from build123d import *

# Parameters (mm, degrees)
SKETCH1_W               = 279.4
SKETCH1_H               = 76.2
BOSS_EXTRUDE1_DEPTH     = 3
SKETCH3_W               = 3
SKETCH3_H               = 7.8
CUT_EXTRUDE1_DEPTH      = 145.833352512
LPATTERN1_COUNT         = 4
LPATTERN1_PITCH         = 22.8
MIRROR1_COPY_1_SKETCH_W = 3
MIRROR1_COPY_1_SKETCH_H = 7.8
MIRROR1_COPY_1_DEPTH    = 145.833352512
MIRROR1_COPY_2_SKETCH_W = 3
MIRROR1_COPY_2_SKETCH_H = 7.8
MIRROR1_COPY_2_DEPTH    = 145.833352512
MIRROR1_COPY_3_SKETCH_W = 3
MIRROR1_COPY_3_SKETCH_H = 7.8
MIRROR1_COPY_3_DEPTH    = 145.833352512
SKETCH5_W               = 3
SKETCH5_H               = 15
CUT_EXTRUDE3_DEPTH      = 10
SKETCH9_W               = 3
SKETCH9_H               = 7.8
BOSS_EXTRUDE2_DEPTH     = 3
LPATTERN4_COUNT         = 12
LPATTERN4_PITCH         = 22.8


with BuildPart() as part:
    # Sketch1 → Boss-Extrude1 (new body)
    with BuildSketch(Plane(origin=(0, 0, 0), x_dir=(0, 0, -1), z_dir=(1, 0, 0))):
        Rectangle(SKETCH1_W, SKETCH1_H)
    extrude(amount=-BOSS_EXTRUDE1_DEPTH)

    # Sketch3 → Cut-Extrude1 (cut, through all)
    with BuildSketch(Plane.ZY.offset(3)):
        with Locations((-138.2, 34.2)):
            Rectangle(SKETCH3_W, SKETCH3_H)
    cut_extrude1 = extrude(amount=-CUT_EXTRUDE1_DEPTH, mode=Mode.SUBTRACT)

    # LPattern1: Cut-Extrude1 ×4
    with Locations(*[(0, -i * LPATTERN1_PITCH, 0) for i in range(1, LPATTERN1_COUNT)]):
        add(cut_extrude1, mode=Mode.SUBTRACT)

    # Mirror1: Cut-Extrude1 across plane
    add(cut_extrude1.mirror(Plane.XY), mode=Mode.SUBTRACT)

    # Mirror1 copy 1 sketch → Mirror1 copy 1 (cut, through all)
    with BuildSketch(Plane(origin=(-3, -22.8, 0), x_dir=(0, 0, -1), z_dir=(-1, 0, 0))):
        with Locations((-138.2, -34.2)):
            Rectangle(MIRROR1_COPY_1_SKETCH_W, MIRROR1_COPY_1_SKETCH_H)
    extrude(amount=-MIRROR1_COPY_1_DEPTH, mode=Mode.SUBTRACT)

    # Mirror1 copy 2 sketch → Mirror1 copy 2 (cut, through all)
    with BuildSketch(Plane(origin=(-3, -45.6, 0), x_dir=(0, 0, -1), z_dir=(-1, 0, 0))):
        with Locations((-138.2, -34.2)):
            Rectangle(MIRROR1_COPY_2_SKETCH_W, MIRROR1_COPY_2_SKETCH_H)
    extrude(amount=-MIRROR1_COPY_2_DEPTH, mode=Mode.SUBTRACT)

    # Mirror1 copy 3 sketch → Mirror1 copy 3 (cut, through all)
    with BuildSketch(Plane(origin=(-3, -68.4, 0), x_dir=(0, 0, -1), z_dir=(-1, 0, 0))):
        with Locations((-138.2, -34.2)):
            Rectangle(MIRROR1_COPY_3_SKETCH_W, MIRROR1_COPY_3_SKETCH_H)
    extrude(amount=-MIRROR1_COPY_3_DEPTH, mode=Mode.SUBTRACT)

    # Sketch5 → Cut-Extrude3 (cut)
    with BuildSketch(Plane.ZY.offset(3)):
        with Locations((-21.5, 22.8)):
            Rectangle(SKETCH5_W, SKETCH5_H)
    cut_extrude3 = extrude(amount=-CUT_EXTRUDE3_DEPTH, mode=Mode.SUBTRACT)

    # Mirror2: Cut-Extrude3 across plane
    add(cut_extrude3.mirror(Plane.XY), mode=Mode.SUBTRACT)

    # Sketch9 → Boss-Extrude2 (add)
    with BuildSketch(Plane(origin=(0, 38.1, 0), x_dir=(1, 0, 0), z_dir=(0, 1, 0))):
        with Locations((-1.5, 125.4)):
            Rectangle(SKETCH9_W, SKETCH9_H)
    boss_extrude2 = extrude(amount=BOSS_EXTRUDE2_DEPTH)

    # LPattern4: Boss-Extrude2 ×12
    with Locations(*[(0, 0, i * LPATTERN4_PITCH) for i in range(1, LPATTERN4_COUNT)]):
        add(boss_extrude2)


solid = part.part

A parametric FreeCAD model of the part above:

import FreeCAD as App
import Part
import Sketcher

V = App.Vector

doc = App.newDocument("Part")
body = doc.addObject("PartDesign::Body", "Body")

# Sketch on YZ plane
sketch1 = body.newObject("Sketcher::SketchObject", "Sketch")
sketch1.AttachmentSupport = (doc.getObject("YZ_Plane"), [""])
sketch1.MapMode = "FlatFace"
sketch1.addGeometry(Part.LineSegment(V(38, 140, 0), V(-38, 140, 0)), False)
sketch1.addGeometry(Part.LineSegment(V(-38, 140, 0), V(-38, -140, 0)), False)
sketch1.addGeometry(Part.LineSegment(V(-38, -140, 0), V(38, -140, 0)), False)
sketch1.addGeometry(Part.LineSegment(V(38, -140, 0), V(38, 140, 0)), False)
sketch1.addConstraint(Sketcher.Constraint("Coincident", 0, 2, 1, 1))
sketch1.addConstraint(Sketcher.Constraint("Coincident", 1, 2, 2, 1))
sketch1.addConstraint(Sketcher.Constraint("Coincident", 2, 2, 3, 1))
sketch1.addConstraint(Sketcher.Constraint("Coincident", 3, 2, 0, 1))
sketch1.addConstraint(Sketcher.Constraint("Horizontal", 0))
sketch1.addConstraint(Sketcher.Constraint("Vertical", 1))
sketch1.addConstraint(Sketcher.Constraint("Horizontal", 2))
sketch1.addConstraint(Sketcher.Constraint("Vertical", 3))
sketch1.addConstraint(Sketcher.Constraint("Symmetric", 0, 2, 2, 2, -1, 1))
sketch1.addConstraint(Sketcher.Constraint("DistanceX", 0, 2, 0, 1, 76.2))
sketch1.addConstraint(Sketcher.Constraint("DistanceY", 1, 2, 1, 1, 279.4))
pad1 = body.newObject("PartDesign::Pad", "Pad")
pad1.Profile = sketch1
pad1.Length = 3
pad1.Reversed = True

# Sketch on YZ plane
sketch2 = body.newObject("Sketcher::SketchObject", "Sketch001")
sketch2.AttachmentSupport = (doc.getObject("YZ_Plane"), [""])
sketch2.MapMode = "FlatFace"
sketch2.AttachmentOffset = App.Placement(V(0, 0, -3), App.Rotation())
sketch2.addGeometry(Part.LineSegment(V(38.1, -139.7, 0), V(30.3, -139.7, 0)), False)
sketch2.addGeometry(Part.LineSegment(V(30.3, -139.7, 0), V(30.3, -136.7, 0)), False)
sketch2.addGeometry(Part.LineSegment(V(30.3, -136.7, 0), V(38.1, -136.7, 0)), False)
sketch2.addGeometry(Part.LineSegment(V(38.1, -136.7, 0), V(38.1, -139.7, 0)), False)
sketch2.addConstraint(Sketcher.Constraint("Coincident", 0, 2, 1, 1))
sketch2.addConstraint(Sketcher.Constraint("Coincident", 1, 2, 2, 1))
sketch2.addConstraint(Sketcher.Constraint("Coincident", 2, 2, 3, 1))
sketch2.addConstraint(Sketcher.Constraint("Coincident", 3, 2, 0, 1))
sketch2.addConstraint(Sketcher.Constraint("Horizontal", 0))
sketch2.addConstraint(Sketcher.Constraint("Vertical", 1))
sketch2.addConstraint(Sketcher.Constraint("Horizontal", 2))
sketch2.addConstraint(Sketcher.Constraint("Vertical", 3))
sketch2.addConstraint(Sketcher.Constraint("DistanceY", 1, 1, 1, 2, 3.0))
sketch2.addConstraint(Sketcher.Constraint("DistanceX", 0, 2, 0, 1, 7.8))
sketch2.addConstraint(Sketcher.Constraint("DistanceX", -1, 1, 0, 2, 30.3))
sketch2.addConstraint(Sketcher.Constraint("DistanceY", 0, 2, -1, 1, 139.7))
pocket1 = body.newObject("PartDesign::Pocket", "Pocket")
pocket1.Profile = sketch2
pocket1.Type = "ThroughAll"
pocket1.Reversed = True
doc.recompute()

linearpattern = body.newObject("PartDesign::LinearPattern", "LinearPattern")
linearpattern.Originals = [pocket1]
linearpattern.Direction = (doc.getObject("Y_Axis"), [""])
linearpattern.Mode = "offset"
linearpattern.Offset = 22.8
linearpattern.Occurrences = 4
linearpattern.Reversed = True
body.Tip = linearpattern
doc.recompute()

mirrored = body.newObject("PartDesign::Mirrored", "Mirrored")
mirrored.Originals = [pocket1]
mirrored.MirrorPlane = (doc.getObject("XY_Plane"), [""])
body.Tip = mirrored

# Sketch on YZ plane
sketch3 = body.newObject("Sketcher::SketchObject", "Sketch002")
sketch3.AttachmentSupport = (doc.getObject("YZ_Plane"), [""])
sketch3.MapMode = "FlatFace"
sketch3.AttachmentOffset = App.Placement(V(0, 0, -3), App.Rotation())
sketch3.addGeometry(Part.LineSegment(V(7.5, 139.7, 0), V(15.3, 139.7, 0)), False)
sketch3.addGeometry(Part.LineSegment(V(15.3, 139.7, 0), V(15.3, 136.7, 0)), False)
sketch3.addGeometry(Part.LineSegment(V(15.3, 136.7, 0), V(7.5, 136.7, 0)), False)
sketch3.addGeometry(Part.LineSegment(V(7.5, 136.7, 0), V(7.5, 139.7, 0)), False)
sketch3.addConstraint(Sketcher.Constraint("Coincident", 0, 2, 1, 1))
sketch3.addConstraint(Sketcher.Constraint("Coincident", 1, 2, 2, 1))
sketch3.addConstraint(Sketcher.Constraint("Coincident", 2, 2, 3, 1))
sketch3.addConstraint(Sketcher.Constraint("Coincident", 3, 2, 0, 1))
sketch3.addConstraint(Sketcher.Constraint("Horizontal", 0))
sketch3.addConstraint(Sketcher.Constraint("Vertical", 1))
sketch3.addConstraint(Sketcher.Constraint("Horizontal", 2))
sketch3.addConstraint(Sketcher.Constraint("Vertical", 3))
sketch3.addConstraint(Sketcher.Constraint("DistanceY", 1, 2, 1, 1, 3.0))
sketch3.addConstraint(Sketcher.Constraint("DistanceX", 0, 1, 0, 2, 7.8))
sketch3.addConstraint(Sketcher.Constraint("DistanceX", -1, 1, 0, 2, 15.3))
sketch3.addConstraint(Sketcher.Constraint("DistanceY", -1, 1, 0, 2, 139.7))
pocket2 = body.newObject("PartDesign::Pocket", "Pocket001")
pocket2.Profile = sketch3
pocket2.Type = "ThroughAll"
pocket2.Reversed = True

# Sketch on YZ plane
sketch4 = body.newObject("Sketcher::SketchObject", "Sketch003")
sketch4.AttachmentSupport = (doc.getObject("YZ_Plane"), [""])
sketch4.MapMode = "FlatFace"
sketch4.AttachmentOffset = App.Placement(V(0, 0, -3), App.Rotation())
sketch4.addGeometry(Part.LineSegment(V(-15.3, 139.7, 0), V(-7.5, 139.7, 0)), False)
sketch4.addGeometry(Part.LineSegment(V(-7.5, 139.7, 0), V(-7.5, 136.7, 0)), False)
sketch4.addGeometry(Part.LineSegment(V(-7.5, 136.7, 0), V(-15.3, 136.7, 0)), False)
sketch4.addGeometry(Part.LineSegment(V(-15.3, 136.7, 0), V(-15.3, 139.7, 0)), False)
sketch4.addConstraint(Sketcher.Constraint("Coincident", 0, 2, 1, 1))
sketch4.addConstraint(Sketcher.Constraint("Coincident", 1, 2, 2, 1))
sketch4.addConstraint(Sketcher.Constraint("Coincident", 2, 2, 3, 1))
sketch4.addConstraint(Sketcher.Constraint("Coincident", 3, 2, 0, 1))
sketch4.addConstraint(Sketcher.Constraint("Horizontal", 0))
sketch4.addConstraint(Sketcher.Constraint("Vertical", 1))
sketch4.addConstraint(Sketcher.Constraint("Horizontal", 2))
sketch4.addConstraint(Sketcher.Constraint("Vertical", 3))
sketch4.addConstraint(Sketcher.Constraint("DistanceY", 1, 2, 1, 1, 3.0))
sketch4.addConstraint(Sketcher.Constraint("DistanceX", 0, 1, 0, 2, 7.8))
sketch4.addConstraint(Sketcher.Constraint("DistanceX", 0, 2, -1, 1, 7.5))
sketch4.addConstraint(Sketcher.Constraint("DistanceY", -1, 1, 0, 2, 139.7))
pocket3 = body.newObject("PartDesign::Pocket", "Pocket002")
pocket3.Profile = sketch4
pocket3.Type = "ThroughAll"
pocket3.Reversed = True

# Sketch on YZ plane
sketch5 = body.newObject("Sketcher::SketchObject", "Sketch004")
sketch5.AttachmentSupport = (doc.getObject("YZ_Plane"), [""])
sketch5.MapMode = "FlatFace"
sketch5.AttachmentOffset = App.Placement(V(0, 0, -3), App.Rotation())
sketch5.addGeometry(Part.LineSegment(V(-38.1, 139.7, 0), V(-30.3, 139.7, 0)), False)
sketch5.addGeometry(Part.LineSegment(V(-30.3, 139.7, 0), V(-30.3, 136.7, 0)), False)
sketch5.addGeometry(Part.LineSegment(V(-30.3, 136.7, 0), V(-38.1, 136.7, 0)), False)
sketch5.addGeometry(Part.LineSegment(V(-38.1, 136.7, 0), V(-38.1, 139.7, 0)), False)
sketch5.addConstraint(Sketcher.Constraint("Coincident", 0, 2, 1, 1))
sketch5.addConstraint(Sketcher.Constraint("Coincident", 1, 2, 2, 1))
sketch5.addConstraint(Sketcher.Constraint("Coincident", 2, 2, 3, 1))
sketch5.addConstraint(Sketcher.Constraint("Coincident", 3, 2, 0, 1))
sketch5.addConstraint(Sketcher.Constraint("Horizontal", 0))
sketch5.addConstraint(Sketcher.Constraint("Vertical", 1))
sketch5.addConstraint(Sketcher.Constraint("Horizontal", 2))
sketch5.addConstraint(Sketcher.Constraint("Vertical", 3))
sketch5.addConstraint(Sketcher.Constraint("DistanceY", 1, 2, 1, 1, 3.0))
sketch5.addConstraint(Sketcher.Constraint("DistanceX", 0, 1, 0, 2, 7.8))
sketch5.addConstraint(Sketcher.Constraint("DistanceX", 0, 2, -1, 1, 30.3))
sketch5.addConstraint(Sketcher.Constraint("DistanceY", -1, 1, 0, 2, 139.7))
pocket4 = body.newObject("PartDesign::Pocket", "Pocket003")
pocket4.Profile = sketch5
pocket4.Type = "ThroughAll"
pocket4.Reversed = True

# Sketch on YZ plane
sketch6 = body.newObject("Sketcher::SketchObject", "Sketch005")
sketch6.AttachmentSupport = (doc.getObject("YZ_Plane"), [""])
sketch6.MapMode = "FlatFace"
sketch6.AttachmentOffset = App.Placement(V(0, 0, -3), App.Rotation())
sketch6.addGeometry(Part.LineSegment(V(30.3, -23, 0), V(15.3, -23, 0)), False)
sketch6.addGeometry(Part.LineSegment(V(15.3, -23, 0), V(15.3, -20, 0)), False)
sketch6.addGeometry(Part.LineSegment(V(15.3, -20, 0), V(30.3, -20, 0)), False)
sketch6.addGeometry(Part.LineSegment(V(30.3, -20, 0), V(30.3, -23, 0)), False)
sketch6.addConstraint(Sketcher.Constraint("Coincident", 0, 2, 1, 1))
sketch6.addConstraint(Sketcher.Constraint("Coincident", 1, 2, 2, 1))
sketch6.addConstraint(Sketcher.Constraint("Coincident", 2, 2, 3, 1))
sketch6.addConstraint(Sketcher.Constraint("Coincident", 3, 2, 0, 1))
sketch6.addConstraint(Sketcher.Constraint("Horizontal", 0))
sketch6.addConstraint(Sketcher.Constraint("Vertical", 1))
sketch6.addConstraint(Sketcher.Constraint("Horizontal", 2))
sketch6.addConstraint(Sketcher.Constraint("Vertical", 3))
sketch6.addConstraint(Sketcher.Constraint("DistanceX", 0, 2, 0, 1, 15.0))
sketch6.addConstraint(Sketcher.Constraint("DistanceY", 1, 1, 1, 2, 3.0))
sketch6.addConstraint(Sketcher.Constraint("DistanceY", 0, 2, -1, 1, 23.0))
sketch6.addConstraint(Sketcher.Constraint("DistanceX", -1, 1, 0, 2, 15.3))
pocket5 = body.newObject("PartDesign::Pocket", "Pocket004")
pocket5.Profile = sketch6
pocket5.Length = 10
pocket5.Reversed = True
doc.recompute()

mirrored2 = body.newObject("PartDesign::Mirrored", "Mirrored001")
mirrored2.Originals = [pocket5]
mirrored2.MirrorPlane = (doc.getObject("XY_Plane"), [""])
body.Tip = mirrored2

# Sketch on XZ plane
sketch7 = body.newObject("Sketcher::SketchObject", "Sketch006")
sketch7.AttachmentSupport = (doc.getObject("XZ_Plane"), [""])
sketch7.MapMode = "FlatFace"
sketch7.AttachmentOffset = App.Placement(V(0, 0, -38.1), App.Rotation())
sketch7.addGeometry(Part.LineSegment(V(-3, -129.3, 0), V(-3, -121.5, 0)), False)
sketch7.addGeometry(Part.LineSegment(V(-3, -121.5, 0), V(0, -121.5, 0)), False)
sketch7.addGeometry(Part.LineSegment(V(0, -121.5, 0), V(0, -129.3, 0)), False)
sketch7.addGeometry(Part.LineSegment(V(0, -129.3, 0), V(-3, -129.3, 0)), False)
sketch7.addConstraint(Sketcher.Constraint("Coincident", 0, 2, 1, 1))
sketch7.addConstraint(Sketcher.Constraint("Coincident", 1, 2, 2, 1))
sketch7.addConstraint(Sketcher.Constraint("Coincident", 2, 2, 3, 1))
sketch7.addConstraint(Sketcher.Constraint("Coincident", 3, 2, 0, 1))
sketch7.addConstraint(Sketcher.Constraint("Vertical", 0))
sketch7.addConstraint(Sketcher.Constraint("Horizontal", 1))
sketch7.addConstraint(Sketcher.Constraint("Vertical", 2))
sketch7.addConstraint(Sketcher.Constraint("Horizontal", 3))
sketch7.addConstraint(Sketcher.Constraint("PointOnObject", 1, 2, -2))
sketch7.addConstraint(Sketcher.Constraint("DistanceX", 1, 1, 1, 2, 3.0))
sketch7.addConstraint(Sketcher.Constraint("DistanceY", 0, 1, 0, 2, 7.8))
sketch7.addConstraint(Sketcher.Constraint("DistanceY", 0, 2, -1, 1, 121.5))
pad2 = body.newObject("PartDesign::Pad", "Pad001")
pad2.Profile = sketch7
pad2.Length = 3
pad2.Reversed = True
doc.recompute()

linearpattern2 = body.newObject("PartDesign::LinearPattern", "LinearPattern001")
linearpattern2.Originals = [pad2]
linearpattern2.Direction = (doc.getObject("Z_Axis"), [""])
linearpattern2.Mode = "offset"
linearpattern2.Offset = 22.8
linearpattern2.Occurrences = 12
body.Tip = linearpattern2

doc.recompute()
